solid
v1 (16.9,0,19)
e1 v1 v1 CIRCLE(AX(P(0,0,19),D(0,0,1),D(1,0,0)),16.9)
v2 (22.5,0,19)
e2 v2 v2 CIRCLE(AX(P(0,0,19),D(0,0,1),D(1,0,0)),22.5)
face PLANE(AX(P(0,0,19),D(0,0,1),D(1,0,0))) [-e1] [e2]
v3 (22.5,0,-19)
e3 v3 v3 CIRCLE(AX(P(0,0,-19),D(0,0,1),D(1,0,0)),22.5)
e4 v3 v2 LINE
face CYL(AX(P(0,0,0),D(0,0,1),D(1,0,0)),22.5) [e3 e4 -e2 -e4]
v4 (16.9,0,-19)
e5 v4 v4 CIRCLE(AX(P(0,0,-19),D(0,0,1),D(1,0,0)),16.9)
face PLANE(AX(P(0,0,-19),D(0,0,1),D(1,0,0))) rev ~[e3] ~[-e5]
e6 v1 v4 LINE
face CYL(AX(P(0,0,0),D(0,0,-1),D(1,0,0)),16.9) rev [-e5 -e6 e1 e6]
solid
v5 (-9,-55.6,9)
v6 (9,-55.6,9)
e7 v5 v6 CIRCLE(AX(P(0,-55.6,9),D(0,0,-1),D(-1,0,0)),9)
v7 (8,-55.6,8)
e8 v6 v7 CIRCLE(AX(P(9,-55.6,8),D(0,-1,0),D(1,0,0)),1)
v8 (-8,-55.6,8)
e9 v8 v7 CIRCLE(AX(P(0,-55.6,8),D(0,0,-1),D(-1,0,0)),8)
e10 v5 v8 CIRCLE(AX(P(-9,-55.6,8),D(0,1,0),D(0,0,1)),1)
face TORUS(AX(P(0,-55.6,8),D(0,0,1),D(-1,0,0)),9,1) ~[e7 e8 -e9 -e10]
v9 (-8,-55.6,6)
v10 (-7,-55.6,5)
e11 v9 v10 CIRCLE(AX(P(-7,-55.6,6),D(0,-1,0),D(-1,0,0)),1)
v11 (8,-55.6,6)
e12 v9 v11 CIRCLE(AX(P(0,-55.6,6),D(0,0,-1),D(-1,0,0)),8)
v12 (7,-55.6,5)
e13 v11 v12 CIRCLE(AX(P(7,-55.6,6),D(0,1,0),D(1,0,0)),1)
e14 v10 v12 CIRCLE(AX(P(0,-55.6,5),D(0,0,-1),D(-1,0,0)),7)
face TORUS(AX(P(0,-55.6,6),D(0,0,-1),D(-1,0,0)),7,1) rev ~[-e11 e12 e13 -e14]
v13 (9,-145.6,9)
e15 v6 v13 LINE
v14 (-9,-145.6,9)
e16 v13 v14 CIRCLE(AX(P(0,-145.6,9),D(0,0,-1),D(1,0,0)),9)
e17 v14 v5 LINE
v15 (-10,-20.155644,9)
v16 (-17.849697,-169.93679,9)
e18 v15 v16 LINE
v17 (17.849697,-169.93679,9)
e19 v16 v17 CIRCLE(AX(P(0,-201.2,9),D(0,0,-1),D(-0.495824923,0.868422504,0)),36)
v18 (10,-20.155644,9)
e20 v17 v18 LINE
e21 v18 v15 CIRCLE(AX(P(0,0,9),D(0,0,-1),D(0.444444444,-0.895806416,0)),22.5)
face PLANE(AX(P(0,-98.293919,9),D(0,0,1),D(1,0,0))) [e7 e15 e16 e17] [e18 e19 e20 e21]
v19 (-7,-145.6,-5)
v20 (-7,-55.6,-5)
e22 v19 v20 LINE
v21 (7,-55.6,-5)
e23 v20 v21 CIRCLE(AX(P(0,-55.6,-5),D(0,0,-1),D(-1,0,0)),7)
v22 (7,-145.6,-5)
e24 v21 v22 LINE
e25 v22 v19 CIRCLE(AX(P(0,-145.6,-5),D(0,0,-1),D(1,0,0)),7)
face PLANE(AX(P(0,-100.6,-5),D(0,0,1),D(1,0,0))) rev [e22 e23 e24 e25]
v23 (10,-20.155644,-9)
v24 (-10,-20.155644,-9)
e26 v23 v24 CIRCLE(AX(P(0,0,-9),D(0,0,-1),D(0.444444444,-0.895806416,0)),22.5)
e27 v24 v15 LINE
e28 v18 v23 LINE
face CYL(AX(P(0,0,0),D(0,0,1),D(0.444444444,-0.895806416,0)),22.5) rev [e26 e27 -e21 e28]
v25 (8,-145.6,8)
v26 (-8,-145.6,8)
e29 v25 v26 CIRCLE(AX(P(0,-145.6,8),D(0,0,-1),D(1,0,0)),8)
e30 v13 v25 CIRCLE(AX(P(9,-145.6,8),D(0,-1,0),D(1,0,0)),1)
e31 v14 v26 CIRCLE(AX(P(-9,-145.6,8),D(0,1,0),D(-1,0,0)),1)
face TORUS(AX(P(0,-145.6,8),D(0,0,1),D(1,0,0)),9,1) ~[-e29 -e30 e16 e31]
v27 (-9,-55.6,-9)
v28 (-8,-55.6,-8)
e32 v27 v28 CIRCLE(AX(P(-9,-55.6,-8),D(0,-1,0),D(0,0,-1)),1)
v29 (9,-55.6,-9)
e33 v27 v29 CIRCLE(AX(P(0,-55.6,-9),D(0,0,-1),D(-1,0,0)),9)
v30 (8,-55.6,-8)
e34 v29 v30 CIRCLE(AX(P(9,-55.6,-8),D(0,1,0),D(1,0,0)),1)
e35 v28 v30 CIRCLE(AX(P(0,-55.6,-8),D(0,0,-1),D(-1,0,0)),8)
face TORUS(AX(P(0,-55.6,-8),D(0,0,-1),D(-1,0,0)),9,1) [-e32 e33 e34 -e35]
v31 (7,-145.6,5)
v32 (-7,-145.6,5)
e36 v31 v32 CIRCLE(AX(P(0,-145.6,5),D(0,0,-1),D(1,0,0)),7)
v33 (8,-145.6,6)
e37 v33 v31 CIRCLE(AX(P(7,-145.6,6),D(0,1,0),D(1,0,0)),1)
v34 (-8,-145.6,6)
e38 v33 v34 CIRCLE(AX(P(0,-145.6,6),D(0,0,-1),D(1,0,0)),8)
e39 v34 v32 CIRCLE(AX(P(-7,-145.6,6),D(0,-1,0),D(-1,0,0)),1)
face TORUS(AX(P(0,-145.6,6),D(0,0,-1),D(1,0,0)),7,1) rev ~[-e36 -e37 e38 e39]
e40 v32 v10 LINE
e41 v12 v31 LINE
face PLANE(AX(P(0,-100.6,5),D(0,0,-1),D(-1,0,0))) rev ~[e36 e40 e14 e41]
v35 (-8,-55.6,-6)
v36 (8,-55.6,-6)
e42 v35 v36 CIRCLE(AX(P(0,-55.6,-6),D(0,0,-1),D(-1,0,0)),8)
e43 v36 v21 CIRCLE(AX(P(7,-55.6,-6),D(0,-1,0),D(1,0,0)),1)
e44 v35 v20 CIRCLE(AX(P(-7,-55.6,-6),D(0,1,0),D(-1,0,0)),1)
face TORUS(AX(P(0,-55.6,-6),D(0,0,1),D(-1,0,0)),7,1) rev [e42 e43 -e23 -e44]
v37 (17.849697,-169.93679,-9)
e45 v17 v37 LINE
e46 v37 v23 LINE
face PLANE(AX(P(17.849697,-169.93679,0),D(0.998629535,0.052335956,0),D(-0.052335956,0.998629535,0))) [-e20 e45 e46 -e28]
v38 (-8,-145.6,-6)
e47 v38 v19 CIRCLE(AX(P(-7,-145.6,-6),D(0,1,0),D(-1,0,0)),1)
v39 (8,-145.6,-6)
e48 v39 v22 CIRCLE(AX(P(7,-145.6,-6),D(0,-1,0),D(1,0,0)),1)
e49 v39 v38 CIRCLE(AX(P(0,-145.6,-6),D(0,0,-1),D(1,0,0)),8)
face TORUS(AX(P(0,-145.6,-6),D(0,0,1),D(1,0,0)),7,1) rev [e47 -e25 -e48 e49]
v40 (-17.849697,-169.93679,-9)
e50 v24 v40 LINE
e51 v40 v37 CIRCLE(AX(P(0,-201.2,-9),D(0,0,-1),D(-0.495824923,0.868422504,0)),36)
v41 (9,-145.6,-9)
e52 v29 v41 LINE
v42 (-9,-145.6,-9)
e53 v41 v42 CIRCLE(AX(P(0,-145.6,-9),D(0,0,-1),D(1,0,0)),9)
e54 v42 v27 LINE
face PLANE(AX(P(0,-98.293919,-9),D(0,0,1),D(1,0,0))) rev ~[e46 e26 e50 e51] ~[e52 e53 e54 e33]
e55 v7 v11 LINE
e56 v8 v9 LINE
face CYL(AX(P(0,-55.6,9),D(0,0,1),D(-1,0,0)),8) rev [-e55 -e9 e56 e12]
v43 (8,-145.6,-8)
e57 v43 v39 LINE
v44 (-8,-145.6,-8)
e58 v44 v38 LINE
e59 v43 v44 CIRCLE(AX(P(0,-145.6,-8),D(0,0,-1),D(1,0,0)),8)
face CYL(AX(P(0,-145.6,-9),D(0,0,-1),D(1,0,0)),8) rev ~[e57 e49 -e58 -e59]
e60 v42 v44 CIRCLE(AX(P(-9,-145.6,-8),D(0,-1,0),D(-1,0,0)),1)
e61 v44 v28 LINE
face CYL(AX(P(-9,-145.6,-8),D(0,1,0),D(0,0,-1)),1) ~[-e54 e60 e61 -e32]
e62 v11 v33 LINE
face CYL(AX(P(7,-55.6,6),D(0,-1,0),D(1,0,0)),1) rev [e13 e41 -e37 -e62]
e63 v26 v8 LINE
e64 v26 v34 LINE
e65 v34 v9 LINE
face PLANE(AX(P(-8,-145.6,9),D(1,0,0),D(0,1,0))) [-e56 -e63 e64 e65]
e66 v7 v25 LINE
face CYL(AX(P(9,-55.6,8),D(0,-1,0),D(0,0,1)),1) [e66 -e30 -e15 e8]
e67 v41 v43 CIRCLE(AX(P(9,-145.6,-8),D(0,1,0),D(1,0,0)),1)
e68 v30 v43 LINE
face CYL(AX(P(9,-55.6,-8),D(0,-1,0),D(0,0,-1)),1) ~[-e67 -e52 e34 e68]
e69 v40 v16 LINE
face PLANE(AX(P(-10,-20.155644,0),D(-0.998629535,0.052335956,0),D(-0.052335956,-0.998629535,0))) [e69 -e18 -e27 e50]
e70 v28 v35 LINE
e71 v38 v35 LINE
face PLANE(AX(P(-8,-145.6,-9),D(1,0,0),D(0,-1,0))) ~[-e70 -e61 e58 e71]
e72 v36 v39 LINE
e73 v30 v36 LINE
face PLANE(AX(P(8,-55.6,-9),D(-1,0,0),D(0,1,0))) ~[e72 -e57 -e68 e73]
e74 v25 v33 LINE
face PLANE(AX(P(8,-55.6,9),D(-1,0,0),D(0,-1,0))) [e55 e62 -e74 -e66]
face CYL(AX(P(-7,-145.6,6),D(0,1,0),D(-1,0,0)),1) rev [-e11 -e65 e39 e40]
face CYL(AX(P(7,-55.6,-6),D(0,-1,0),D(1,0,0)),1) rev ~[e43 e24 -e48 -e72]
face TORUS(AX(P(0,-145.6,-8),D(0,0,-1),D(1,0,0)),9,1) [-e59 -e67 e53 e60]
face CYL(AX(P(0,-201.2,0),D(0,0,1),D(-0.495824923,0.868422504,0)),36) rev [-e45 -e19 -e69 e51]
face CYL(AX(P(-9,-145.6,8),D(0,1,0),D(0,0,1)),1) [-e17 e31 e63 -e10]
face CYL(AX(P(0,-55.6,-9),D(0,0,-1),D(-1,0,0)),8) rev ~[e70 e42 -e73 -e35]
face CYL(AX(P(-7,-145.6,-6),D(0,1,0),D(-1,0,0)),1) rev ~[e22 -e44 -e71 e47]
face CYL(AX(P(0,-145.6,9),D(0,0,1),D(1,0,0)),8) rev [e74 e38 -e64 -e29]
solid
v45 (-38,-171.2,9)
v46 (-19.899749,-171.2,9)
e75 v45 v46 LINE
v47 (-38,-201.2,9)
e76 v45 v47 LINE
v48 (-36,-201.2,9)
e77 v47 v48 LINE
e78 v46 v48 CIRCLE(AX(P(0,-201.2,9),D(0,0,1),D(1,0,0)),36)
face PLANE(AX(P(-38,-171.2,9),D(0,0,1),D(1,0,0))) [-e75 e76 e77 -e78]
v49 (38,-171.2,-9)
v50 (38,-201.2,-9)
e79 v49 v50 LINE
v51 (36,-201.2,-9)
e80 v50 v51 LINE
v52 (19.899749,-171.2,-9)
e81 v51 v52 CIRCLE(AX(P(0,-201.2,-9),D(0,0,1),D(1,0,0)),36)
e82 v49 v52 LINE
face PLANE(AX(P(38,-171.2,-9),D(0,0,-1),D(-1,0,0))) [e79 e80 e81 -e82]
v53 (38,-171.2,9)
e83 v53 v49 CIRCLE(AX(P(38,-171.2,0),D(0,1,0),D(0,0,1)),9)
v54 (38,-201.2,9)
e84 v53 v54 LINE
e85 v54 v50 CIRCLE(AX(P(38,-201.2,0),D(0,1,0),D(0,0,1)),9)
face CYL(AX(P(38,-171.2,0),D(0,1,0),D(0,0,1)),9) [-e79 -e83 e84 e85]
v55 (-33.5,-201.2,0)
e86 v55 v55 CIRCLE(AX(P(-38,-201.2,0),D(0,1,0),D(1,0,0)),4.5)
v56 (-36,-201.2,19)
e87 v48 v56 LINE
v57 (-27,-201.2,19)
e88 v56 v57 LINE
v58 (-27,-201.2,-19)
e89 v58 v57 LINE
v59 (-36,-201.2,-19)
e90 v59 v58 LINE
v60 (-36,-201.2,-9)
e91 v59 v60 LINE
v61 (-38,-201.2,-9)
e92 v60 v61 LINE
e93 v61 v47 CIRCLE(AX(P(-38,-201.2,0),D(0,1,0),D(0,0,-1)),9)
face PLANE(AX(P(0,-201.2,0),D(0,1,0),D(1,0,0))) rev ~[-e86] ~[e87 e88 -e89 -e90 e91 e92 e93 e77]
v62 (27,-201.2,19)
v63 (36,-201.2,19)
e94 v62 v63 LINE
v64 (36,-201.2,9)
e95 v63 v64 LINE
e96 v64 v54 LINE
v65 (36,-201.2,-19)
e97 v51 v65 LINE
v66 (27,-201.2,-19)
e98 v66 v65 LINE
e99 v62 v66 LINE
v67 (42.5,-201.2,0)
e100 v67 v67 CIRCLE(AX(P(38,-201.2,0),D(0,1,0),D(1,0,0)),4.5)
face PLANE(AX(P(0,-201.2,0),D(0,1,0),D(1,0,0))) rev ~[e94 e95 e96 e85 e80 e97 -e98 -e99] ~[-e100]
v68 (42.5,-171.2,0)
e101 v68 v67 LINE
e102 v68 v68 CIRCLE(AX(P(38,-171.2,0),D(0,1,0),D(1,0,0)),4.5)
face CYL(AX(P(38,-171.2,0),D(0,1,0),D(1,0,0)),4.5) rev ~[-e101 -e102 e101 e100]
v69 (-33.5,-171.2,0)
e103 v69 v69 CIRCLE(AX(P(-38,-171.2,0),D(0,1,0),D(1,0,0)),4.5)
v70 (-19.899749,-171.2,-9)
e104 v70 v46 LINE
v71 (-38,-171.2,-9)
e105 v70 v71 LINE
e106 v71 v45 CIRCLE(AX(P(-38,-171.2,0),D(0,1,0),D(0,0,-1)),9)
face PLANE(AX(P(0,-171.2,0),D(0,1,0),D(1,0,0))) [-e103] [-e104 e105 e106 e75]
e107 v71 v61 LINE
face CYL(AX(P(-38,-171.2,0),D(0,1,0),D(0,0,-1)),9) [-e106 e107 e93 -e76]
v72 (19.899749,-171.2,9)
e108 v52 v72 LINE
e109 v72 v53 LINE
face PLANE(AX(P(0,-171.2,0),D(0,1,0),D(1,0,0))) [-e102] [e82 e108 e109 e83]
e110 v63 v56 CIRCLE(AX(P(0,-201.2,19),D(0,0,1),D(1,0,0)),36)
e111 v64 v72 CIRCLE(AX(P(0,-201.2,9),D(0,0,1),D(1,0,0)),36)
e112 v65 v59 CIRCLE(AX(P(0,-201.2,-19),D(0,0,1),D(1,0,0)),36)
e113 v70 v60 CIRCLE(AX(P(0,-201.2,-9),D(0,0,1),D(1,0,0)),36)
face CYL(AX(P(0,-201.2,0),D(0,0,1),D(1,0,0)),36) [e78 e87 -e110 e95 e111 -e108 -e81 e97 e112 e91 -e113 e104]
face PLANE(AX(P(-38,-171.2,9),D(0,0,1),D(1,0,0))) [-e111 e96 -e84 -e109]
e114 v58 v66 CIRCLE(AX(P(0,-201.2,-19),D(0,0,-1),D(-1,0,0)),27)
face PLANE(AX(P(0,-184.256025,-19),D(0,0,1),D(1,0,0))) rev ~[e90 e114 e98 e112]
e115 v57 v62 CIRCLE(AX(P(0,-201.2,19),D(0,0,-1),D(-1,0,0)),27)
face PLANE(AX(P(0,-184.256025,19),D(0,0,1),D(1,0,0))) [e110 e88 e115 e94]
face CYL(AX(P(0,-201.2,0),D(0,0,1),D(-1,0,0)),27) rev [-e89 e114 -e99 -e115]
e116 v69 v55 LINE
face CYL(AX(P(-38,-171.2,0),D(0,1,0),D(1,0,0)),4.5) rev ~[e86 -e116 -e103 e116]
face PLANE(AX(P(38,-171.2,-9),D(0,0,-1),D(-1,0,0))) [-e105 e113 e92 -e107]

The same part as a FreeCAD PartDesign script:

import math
import FreeCAD as App
import Part
import Sketcher
Q = App.Units.Quantity


def edges_at(feature, points):
    """Names of the edges that pass closest to the given points."""
    edges = feature.Shape.Edges
    near = lambda p: min(range(len(edges)), key=lambda i: edges[i].distToShape(Part.Vertex(*p))[0])
    return sorted({f"Edge{near(p) + 1}" for p in points})

doc = App.newDocument("Part")
body = doc.addObject("PartDesign::Body", "Body")

sketch1 = body.newObject("Sketcher::SketchObject", "Sketch")
sketch1.AttachmentSupport = (doc.getObject("XY_Plane"), [""])
sketch1.MapMode = "FlatFace"
sketch1.addGeometry(Part.Circle(App.Vector(0, 0, 0), App.Vector(0, 0, 1), 22), False)
sketch1.addGeometry(Part.Circle(App.Vector(0, 0, 0), App.Vector(0, 0, 1), 17), False)
sketch1.addConstraint(Sketcher.Constraint("Coincident", 0, 3, -1, 1))
sketch1.addConstraint(Sketcher.Constraint("Coincident", 1, 3, -1, 1))
sketch1.addConstraint(Sketcher.Constraint("Diameter", 0, 45.0))
sketch1.addConstraint(Sketcher.Constraint("Diameter", 1, 33.8))
pad1 = body.newObject("PartDesign::Pad", "Pad")
pad1.Profile = sketch1
pad1.Length = 38
pad1.Midplane = True
body2 = doc.addObject("PartDesign::Body", "Body001")

sketch2 = body2.newObject("Sketcher::SketchObject", "Sketch001")
sketch2.AttachmentSupport = (doc.getObject("XY_Plane001"), [""])
sketch2.MapMode = "FlatFace"
sketch2.addGeometry(Part.ArcOfCircle(Part.Circle(App.Vector(0, -201, 0), App.Vector(0, 0, 1), 36), math.radians(0), math.radians(180)), False)
sketch2.addGeometry(Part.LineSegment(App.Vector(-36, -201, 0), App.Vector(-27, -201, 0)), False)
sketch2.addGeometry(Part.ArcOfCircle(Part.Circle(App.Vector(0, -201, 0), App.Vector(0, 0, 1), 27), math.radians(0), math.radians(180)), False)
sketch2.addGeometry(Part.LineSegment(App.Vector(27, -201, 0), App.Vector(36, -201, 0)), False)
sketch2.addConstraint(Sketcher.Constraint("Coincident", 0, 2, 1, 1))
sketch2.addConstraint(Sketcher.Constraint("Coincident", 1, 2, 2, 2))
sketch2.addConstraint(Sketcher.Constraint("Coincident", 2, 1, 3, 1))
sketch2.addConstraint(Sketcher.Constraint("Coincident", 3, 2, 0, 1))
sketch2.addConstraint(Sketcher.Constraint("Horizontal", 1))
sketch2.addConstraint(Sketcher.Constraint("Horizontal", 3))
sketch2.addConstraint(Sketcher.Constraint("Coincident", 2, 3, 0, 3))
sketch2.addConstraint(Sketcher.Constraint("Symmetric", 1, 2, 2, 1, -2))
sketch2.addConstraint(Sketcher.Constraint("Horizontal", 2, 3, 0, 2))
sketch2.addConstraint(Sketcher.Constraint("Radius", 0, 36.0))
sketch2.addConstraint(Sketcher.Constraint("Radius", 2, 27.0))
sketch2.addConstraint(Sketcher.Constraint("DistanceY", 0, 3, -1, 1, 201.2))
pad2 = body2.newObject("PartDesign::Pad", "Pad001")
pad2.Profile = sketch2
pad2.Length = 38
pad2.Midplane = True

sketch3 = body2.newObject("Sketcher::SketchObject", "Sketch002")
sketch3.AttachmentSupport = (doc.getObject("XZ_Plane001"), [""])
sketch3.MapMode = "FlatFace"
sketch3.AttachmentOffset = App.Placement(App.Vector(0, 0, 171.2), App.Rotation())
sketch3.addGeometry(Part.LineSegment(App.Vector(38, 9, 0), App.Vector(-38, 9, 0)), False)
sketch3.addGeometry(Part.ArcOfCircle(Part.Circle(App.Vector(-38, 0, 0), App.Vector(0, 0, 1), 9), math.radians(90), math.radians(270)), False)
sketch3.addGeometry(Part.LineSegment(App.Vector(-38, -9, 0), App.Vector(38, -9, 0)), False)
sketch3.addGeometry(Part.ArcOfCircle(Part.Circle(App.Vector(38, 0, 0), App.Vector(0, 0, 1), 9), math.radians(-90), math.radians(90)), False)
sketch3.addConstraint(Sketcher.Constraint("Tangent", 0, 2, 1, 1))
sketch3.addConstraint(Sketcher.Constraint("Tangent", 1, 2, 2, 1))
sketch3.addConstraint(Sketcher.Constraint("Tangent", 2, 2, 3, 1))
sketch3.addConstraint(Sketcher.Constraint("Tangent", 3, 2, 0, 1))
sketch3.addConstraint(Sketcher.Constraint("Horizontal", 0))
sketch3.addConstraint(Sketcher.Constraint("Horizontal", 2))
sketch3.addConstraint(Sketcher.Constraint("Symmetric", 1, 3, 3, 3, -1, 1))
sketch3.addConstraint(Sketcher.Constraint("Radius", 1, 9.0))
sketch3.addConstraint(Sketcher.Constraint("DistanceX", 0, 2, 0, 1, 76.0))
pad3 = body2.newObject("PartDesign::Pad", "Pad002")
pad3.Profile = sketch3
pad3.Length = 30

sketch4 = body2.newObject("Sketcher::SketchObject", "Sketch003")
sketch4.AttachmentSupport = (doc.getObject("XY_Plane001"), [""])
sketch4.MapMode = "FlatFace"
sketch4.AttachmentOffset = App.Placement(App.Vector(0, 0, 9), App.Rotation())
sketch4.addGeometry(Part.LineSegment(App.Vector(-27, -201, 0), App.Vector(27, -201, 0)), False)
sketch4.addGeometry(Part.ArcOfCircle(Part.Circle(App.Vector(0, -201, 0), App.Vector(0, 0, 1), 27), math.radians(0), math.radians(180)), False)
sketch4.addConstraint(Sketcher.Constraint("Coincident", 0, 1, 1, 2))
sketch4.addConstraint(Sketcher.Constraint("Coincident", 1, 1, 0, 2))
sketch4.addConstraint(Sketcher.Constraint("Horizontal", 0))
sketch4.addConstraint(Sketcher.Constraint("PointOnObject", 1, 3, -2))
sketch4.addConstraint(Sketcher.Constraint("Horizontal", 1, 3, 0, 1))
sketch4.addConstraint(Sketcher.Constraint("Radius", 1, 27.0))
sketch4.addConstraint(Sketcher.Constraint("DistanceY", 1, 3, -1, 1, 201.2))
pocket1 = body2.newObject("PartDesign::Pocket", "Pocket")
pocket1.Profile = sketch4
pocket1.Type = "ThroughAll"

sketch5 = body2.newObject("Sketcher::SketchObject", "Sketch004")
sketch5.AttachmentSupport = (doc.getObject("XZ_Plane001"), [""])
sketch5.MapMode = "FlatFace"
sketch5.AttachmentOffset = App.Placement(App.Vector(0, 0, 171.2), App.Rotation())
sketch5.addGeometry(Part.Circle(App.Vector(38, 0, 0), App.Vector(0, 0, 1), 4.5), False)
sketch5.addGeometry(Part.Circle(App.Vector(-38, 0, 0), App.Vector(0, 0, 1), 4.5), False)
sketch5.addConstraint(Sketcher.Constraint("Equal", 0, 1))
sketch5.addConstraint(Sketcher.Constraint("Symmetric", 0, 3, 1, 3, -1, 1))
sketch5.addConstraint(Sketcher.Constraint("PointOnObject", 0, 3, -1))
sketch5.addConstraint(Sketcher.Constraint("Diameter", 0, 9.0))
sketch5.addConstraint(Sketcher.Constraint("DistanceX", -1, 1, 0, 3, 38.0))
pocket2 = body2.newObject("PartDesign::Pocket", "Pocket001")
pocket2.Profile = sketch5
pocket2.Type = "ThroughAll"
pocket2.Reversed = True
body3 = doc.addObject("PartDesign::Body", "Body002")

sketch6 = body3.newObject("Sketcher::SketchObject", "Sketch005")
sketch6.AttachmentSupport = (doc.getObject("XY_Plane002"), [""])
sketch6.MapMode = "FlatFace"
sketch6.addGeometry(Part.ArcOfCircle(Part.Circle(App.Vector(0, 0, 0), App.Vector(0, 0, 1), 23), math.radians(-116), math.radians(-64)), False)
sketch6.addGeometry(Part.LineSegment(App.Vector(-10, -20, 0), App.Vector(-18, -170, 0)), False)
sketch6.addGeometry(Part.ArcOfCircle(Part.Circle(App.Vector(0, -201, 0), App.Vector(0, 0, 1), 36), math.radians(60), math.radians(120)), False)
sketch6.addGeometry(Part.LineSegment(App.Vector(18, -170, 0), App.Vector(10, -20, 0)), False)
sketch6.addConstraint(Sketcher.Constraint("Coincident", 0, 1, 1, 1))
sketch6.addConstraint(Sketcher.Constraint("Coincident", 1, 2, 2, 2))
sketch6.addConstraint(Sketcher.Constraint("Coincident", 2, 1, 3, 1))
sketch6.addConstraint(Sketcher.Constraint("Coincident", 3, 2, 0, 2))
sketch6.addConstraint(Sketcher.Constraint("Coincident", 0, 3, -1, 1))
sketch6.addConstraint(Sketcher.Constraint("Symmetric", 1, 2, 2, 1, -2))
sketch6.addConstraint(Sketcher.Constraint("Horizontal", 0, 1, 3, 2))
sketch6.addConstraint(Sketcher.Constraint("Radius", 2, 36.0))
sketch6.addConstraint(Sketcher.Constraint("Radius", 0, 22.5))
sketch6.addConstraint(Sketcher.Constraint("Angle", 1, Q("-93 deg")))
sketch6.addConstraint(Sketcher.Constraint("DistanceX", 0, 1, -1, 1, 10.0))
sketch6.addConstraint(Sketcher.Constraint("DistanceY", 2, 3, -1, 1, 201.2))
pad4 = body3.newObject("PartDesign::Pad", "Pad003")
pad4.Profile = sketch6
pad4.Length = 18
pad4.Midplane = True

sketch7 = body3.newObject("Sketcher::SketchObject", "Sketch006")
sketch7.AttachmentSupport = (doc.getObject("XY_Plane002"), [""])
sketch7.MapMode = "FlatFace"
sketch7.AttachmentOffset = App.Placement(App.Vector(0, 0, 9), App.Rotation())
sketch7.addGeometry(Part.LineSegment(App.Vector(-8, -56, 0), App.Vector(-8, -146, 0)), False)
sketch7.addGeometry(Part.ArcOfCircle(Part.Circle(App.Vector(0, -146, 0), App.Vector(0, 0, 1), 8), math.radians(180), math.radians(360)), False)
sketch7.addGeometry(Part.LineSegment(App.Vector(8, -146, 0), App.Vector(8, -56, 0)), False)
sketch7.addGeometry(Part.ArcOfCircle(Part.Circle(App.Vector(0, -56, 0), App.Vector(0, 0, 1), 8), math.radians(0), math.radians(180)), False)
sketch7.addConstraint(Sketcher.Constraint("Tangent", 0, 2, 1, 1))
sketch7.addConstraint(Sketcher.Constraint("Tangent", 1, 2, 2, 1))
sketch7.addConstraint(Sketcher.Constraint("Tangent", 2, 2, 3, 1))
sketch7.addConstraint(Sketcher.Constraint("Tangent", 3, 2, 0, 1))
sketch7.addConstraint(Sketcher.Constraint("Vertical", 0))
sketch7.addConstraint(Sketcher.Constraint("Vertical", 2))
sketch7.addConstraint(Sketcher.Constraint("PointOnObject", 1, 3, -2))
sketch7.addConstraint(Sketcher.Constraint("Radius", 1, 8.0))
sketch7.addConstraint(Sketcher.Constraint("DistanceY", 0, 2, 0, 1, 90.0))
sketch7.addConstraint(Sketcher.Constraint("DistanceY", 1, 3, -1, 1, 145.6))
pocket3 = body3.newObject("PartDesign::Pocket", "Pocket002")
pocket3.Profile = sketch7
pocket3.Length = 4
doc.recompute()

mirrored = body3.newObject("PartDesign::Mirrored", "Mirrored")
mirrored.Originals = [pocket3]
mirrored.MirrorPlane = (doc.getObject("XY_Plane002"), [""])
body3.Tip = mirrored
doc.recompute()

fillet = body3.newObject("PartDesign::Fillet", "Fillet")
fillet.Base = (mirrored, edges_at(mirrored, [
    (0, -153.6, 5),
    (-8, -100.6, 5),
    (0, -47.6, 5),
    (8, -100.6, 5),
    (0, -153.6, 9),
    (8, -100.6, 9),
    (0, -47.6, 9),
    (-8, -100.6, 9),
    (0, -153.6, -9),
    (8, -100.6, -9),
    (0, -47.6, -9),
    (-8, -100.6, -9),
    (0, -153.6, -5),
    (8, -100.6, -5),
    (0, -47.6, -5),
    (-8, -100.6, -5),
]))
fillet.Radius = 1

doc.recompute()
